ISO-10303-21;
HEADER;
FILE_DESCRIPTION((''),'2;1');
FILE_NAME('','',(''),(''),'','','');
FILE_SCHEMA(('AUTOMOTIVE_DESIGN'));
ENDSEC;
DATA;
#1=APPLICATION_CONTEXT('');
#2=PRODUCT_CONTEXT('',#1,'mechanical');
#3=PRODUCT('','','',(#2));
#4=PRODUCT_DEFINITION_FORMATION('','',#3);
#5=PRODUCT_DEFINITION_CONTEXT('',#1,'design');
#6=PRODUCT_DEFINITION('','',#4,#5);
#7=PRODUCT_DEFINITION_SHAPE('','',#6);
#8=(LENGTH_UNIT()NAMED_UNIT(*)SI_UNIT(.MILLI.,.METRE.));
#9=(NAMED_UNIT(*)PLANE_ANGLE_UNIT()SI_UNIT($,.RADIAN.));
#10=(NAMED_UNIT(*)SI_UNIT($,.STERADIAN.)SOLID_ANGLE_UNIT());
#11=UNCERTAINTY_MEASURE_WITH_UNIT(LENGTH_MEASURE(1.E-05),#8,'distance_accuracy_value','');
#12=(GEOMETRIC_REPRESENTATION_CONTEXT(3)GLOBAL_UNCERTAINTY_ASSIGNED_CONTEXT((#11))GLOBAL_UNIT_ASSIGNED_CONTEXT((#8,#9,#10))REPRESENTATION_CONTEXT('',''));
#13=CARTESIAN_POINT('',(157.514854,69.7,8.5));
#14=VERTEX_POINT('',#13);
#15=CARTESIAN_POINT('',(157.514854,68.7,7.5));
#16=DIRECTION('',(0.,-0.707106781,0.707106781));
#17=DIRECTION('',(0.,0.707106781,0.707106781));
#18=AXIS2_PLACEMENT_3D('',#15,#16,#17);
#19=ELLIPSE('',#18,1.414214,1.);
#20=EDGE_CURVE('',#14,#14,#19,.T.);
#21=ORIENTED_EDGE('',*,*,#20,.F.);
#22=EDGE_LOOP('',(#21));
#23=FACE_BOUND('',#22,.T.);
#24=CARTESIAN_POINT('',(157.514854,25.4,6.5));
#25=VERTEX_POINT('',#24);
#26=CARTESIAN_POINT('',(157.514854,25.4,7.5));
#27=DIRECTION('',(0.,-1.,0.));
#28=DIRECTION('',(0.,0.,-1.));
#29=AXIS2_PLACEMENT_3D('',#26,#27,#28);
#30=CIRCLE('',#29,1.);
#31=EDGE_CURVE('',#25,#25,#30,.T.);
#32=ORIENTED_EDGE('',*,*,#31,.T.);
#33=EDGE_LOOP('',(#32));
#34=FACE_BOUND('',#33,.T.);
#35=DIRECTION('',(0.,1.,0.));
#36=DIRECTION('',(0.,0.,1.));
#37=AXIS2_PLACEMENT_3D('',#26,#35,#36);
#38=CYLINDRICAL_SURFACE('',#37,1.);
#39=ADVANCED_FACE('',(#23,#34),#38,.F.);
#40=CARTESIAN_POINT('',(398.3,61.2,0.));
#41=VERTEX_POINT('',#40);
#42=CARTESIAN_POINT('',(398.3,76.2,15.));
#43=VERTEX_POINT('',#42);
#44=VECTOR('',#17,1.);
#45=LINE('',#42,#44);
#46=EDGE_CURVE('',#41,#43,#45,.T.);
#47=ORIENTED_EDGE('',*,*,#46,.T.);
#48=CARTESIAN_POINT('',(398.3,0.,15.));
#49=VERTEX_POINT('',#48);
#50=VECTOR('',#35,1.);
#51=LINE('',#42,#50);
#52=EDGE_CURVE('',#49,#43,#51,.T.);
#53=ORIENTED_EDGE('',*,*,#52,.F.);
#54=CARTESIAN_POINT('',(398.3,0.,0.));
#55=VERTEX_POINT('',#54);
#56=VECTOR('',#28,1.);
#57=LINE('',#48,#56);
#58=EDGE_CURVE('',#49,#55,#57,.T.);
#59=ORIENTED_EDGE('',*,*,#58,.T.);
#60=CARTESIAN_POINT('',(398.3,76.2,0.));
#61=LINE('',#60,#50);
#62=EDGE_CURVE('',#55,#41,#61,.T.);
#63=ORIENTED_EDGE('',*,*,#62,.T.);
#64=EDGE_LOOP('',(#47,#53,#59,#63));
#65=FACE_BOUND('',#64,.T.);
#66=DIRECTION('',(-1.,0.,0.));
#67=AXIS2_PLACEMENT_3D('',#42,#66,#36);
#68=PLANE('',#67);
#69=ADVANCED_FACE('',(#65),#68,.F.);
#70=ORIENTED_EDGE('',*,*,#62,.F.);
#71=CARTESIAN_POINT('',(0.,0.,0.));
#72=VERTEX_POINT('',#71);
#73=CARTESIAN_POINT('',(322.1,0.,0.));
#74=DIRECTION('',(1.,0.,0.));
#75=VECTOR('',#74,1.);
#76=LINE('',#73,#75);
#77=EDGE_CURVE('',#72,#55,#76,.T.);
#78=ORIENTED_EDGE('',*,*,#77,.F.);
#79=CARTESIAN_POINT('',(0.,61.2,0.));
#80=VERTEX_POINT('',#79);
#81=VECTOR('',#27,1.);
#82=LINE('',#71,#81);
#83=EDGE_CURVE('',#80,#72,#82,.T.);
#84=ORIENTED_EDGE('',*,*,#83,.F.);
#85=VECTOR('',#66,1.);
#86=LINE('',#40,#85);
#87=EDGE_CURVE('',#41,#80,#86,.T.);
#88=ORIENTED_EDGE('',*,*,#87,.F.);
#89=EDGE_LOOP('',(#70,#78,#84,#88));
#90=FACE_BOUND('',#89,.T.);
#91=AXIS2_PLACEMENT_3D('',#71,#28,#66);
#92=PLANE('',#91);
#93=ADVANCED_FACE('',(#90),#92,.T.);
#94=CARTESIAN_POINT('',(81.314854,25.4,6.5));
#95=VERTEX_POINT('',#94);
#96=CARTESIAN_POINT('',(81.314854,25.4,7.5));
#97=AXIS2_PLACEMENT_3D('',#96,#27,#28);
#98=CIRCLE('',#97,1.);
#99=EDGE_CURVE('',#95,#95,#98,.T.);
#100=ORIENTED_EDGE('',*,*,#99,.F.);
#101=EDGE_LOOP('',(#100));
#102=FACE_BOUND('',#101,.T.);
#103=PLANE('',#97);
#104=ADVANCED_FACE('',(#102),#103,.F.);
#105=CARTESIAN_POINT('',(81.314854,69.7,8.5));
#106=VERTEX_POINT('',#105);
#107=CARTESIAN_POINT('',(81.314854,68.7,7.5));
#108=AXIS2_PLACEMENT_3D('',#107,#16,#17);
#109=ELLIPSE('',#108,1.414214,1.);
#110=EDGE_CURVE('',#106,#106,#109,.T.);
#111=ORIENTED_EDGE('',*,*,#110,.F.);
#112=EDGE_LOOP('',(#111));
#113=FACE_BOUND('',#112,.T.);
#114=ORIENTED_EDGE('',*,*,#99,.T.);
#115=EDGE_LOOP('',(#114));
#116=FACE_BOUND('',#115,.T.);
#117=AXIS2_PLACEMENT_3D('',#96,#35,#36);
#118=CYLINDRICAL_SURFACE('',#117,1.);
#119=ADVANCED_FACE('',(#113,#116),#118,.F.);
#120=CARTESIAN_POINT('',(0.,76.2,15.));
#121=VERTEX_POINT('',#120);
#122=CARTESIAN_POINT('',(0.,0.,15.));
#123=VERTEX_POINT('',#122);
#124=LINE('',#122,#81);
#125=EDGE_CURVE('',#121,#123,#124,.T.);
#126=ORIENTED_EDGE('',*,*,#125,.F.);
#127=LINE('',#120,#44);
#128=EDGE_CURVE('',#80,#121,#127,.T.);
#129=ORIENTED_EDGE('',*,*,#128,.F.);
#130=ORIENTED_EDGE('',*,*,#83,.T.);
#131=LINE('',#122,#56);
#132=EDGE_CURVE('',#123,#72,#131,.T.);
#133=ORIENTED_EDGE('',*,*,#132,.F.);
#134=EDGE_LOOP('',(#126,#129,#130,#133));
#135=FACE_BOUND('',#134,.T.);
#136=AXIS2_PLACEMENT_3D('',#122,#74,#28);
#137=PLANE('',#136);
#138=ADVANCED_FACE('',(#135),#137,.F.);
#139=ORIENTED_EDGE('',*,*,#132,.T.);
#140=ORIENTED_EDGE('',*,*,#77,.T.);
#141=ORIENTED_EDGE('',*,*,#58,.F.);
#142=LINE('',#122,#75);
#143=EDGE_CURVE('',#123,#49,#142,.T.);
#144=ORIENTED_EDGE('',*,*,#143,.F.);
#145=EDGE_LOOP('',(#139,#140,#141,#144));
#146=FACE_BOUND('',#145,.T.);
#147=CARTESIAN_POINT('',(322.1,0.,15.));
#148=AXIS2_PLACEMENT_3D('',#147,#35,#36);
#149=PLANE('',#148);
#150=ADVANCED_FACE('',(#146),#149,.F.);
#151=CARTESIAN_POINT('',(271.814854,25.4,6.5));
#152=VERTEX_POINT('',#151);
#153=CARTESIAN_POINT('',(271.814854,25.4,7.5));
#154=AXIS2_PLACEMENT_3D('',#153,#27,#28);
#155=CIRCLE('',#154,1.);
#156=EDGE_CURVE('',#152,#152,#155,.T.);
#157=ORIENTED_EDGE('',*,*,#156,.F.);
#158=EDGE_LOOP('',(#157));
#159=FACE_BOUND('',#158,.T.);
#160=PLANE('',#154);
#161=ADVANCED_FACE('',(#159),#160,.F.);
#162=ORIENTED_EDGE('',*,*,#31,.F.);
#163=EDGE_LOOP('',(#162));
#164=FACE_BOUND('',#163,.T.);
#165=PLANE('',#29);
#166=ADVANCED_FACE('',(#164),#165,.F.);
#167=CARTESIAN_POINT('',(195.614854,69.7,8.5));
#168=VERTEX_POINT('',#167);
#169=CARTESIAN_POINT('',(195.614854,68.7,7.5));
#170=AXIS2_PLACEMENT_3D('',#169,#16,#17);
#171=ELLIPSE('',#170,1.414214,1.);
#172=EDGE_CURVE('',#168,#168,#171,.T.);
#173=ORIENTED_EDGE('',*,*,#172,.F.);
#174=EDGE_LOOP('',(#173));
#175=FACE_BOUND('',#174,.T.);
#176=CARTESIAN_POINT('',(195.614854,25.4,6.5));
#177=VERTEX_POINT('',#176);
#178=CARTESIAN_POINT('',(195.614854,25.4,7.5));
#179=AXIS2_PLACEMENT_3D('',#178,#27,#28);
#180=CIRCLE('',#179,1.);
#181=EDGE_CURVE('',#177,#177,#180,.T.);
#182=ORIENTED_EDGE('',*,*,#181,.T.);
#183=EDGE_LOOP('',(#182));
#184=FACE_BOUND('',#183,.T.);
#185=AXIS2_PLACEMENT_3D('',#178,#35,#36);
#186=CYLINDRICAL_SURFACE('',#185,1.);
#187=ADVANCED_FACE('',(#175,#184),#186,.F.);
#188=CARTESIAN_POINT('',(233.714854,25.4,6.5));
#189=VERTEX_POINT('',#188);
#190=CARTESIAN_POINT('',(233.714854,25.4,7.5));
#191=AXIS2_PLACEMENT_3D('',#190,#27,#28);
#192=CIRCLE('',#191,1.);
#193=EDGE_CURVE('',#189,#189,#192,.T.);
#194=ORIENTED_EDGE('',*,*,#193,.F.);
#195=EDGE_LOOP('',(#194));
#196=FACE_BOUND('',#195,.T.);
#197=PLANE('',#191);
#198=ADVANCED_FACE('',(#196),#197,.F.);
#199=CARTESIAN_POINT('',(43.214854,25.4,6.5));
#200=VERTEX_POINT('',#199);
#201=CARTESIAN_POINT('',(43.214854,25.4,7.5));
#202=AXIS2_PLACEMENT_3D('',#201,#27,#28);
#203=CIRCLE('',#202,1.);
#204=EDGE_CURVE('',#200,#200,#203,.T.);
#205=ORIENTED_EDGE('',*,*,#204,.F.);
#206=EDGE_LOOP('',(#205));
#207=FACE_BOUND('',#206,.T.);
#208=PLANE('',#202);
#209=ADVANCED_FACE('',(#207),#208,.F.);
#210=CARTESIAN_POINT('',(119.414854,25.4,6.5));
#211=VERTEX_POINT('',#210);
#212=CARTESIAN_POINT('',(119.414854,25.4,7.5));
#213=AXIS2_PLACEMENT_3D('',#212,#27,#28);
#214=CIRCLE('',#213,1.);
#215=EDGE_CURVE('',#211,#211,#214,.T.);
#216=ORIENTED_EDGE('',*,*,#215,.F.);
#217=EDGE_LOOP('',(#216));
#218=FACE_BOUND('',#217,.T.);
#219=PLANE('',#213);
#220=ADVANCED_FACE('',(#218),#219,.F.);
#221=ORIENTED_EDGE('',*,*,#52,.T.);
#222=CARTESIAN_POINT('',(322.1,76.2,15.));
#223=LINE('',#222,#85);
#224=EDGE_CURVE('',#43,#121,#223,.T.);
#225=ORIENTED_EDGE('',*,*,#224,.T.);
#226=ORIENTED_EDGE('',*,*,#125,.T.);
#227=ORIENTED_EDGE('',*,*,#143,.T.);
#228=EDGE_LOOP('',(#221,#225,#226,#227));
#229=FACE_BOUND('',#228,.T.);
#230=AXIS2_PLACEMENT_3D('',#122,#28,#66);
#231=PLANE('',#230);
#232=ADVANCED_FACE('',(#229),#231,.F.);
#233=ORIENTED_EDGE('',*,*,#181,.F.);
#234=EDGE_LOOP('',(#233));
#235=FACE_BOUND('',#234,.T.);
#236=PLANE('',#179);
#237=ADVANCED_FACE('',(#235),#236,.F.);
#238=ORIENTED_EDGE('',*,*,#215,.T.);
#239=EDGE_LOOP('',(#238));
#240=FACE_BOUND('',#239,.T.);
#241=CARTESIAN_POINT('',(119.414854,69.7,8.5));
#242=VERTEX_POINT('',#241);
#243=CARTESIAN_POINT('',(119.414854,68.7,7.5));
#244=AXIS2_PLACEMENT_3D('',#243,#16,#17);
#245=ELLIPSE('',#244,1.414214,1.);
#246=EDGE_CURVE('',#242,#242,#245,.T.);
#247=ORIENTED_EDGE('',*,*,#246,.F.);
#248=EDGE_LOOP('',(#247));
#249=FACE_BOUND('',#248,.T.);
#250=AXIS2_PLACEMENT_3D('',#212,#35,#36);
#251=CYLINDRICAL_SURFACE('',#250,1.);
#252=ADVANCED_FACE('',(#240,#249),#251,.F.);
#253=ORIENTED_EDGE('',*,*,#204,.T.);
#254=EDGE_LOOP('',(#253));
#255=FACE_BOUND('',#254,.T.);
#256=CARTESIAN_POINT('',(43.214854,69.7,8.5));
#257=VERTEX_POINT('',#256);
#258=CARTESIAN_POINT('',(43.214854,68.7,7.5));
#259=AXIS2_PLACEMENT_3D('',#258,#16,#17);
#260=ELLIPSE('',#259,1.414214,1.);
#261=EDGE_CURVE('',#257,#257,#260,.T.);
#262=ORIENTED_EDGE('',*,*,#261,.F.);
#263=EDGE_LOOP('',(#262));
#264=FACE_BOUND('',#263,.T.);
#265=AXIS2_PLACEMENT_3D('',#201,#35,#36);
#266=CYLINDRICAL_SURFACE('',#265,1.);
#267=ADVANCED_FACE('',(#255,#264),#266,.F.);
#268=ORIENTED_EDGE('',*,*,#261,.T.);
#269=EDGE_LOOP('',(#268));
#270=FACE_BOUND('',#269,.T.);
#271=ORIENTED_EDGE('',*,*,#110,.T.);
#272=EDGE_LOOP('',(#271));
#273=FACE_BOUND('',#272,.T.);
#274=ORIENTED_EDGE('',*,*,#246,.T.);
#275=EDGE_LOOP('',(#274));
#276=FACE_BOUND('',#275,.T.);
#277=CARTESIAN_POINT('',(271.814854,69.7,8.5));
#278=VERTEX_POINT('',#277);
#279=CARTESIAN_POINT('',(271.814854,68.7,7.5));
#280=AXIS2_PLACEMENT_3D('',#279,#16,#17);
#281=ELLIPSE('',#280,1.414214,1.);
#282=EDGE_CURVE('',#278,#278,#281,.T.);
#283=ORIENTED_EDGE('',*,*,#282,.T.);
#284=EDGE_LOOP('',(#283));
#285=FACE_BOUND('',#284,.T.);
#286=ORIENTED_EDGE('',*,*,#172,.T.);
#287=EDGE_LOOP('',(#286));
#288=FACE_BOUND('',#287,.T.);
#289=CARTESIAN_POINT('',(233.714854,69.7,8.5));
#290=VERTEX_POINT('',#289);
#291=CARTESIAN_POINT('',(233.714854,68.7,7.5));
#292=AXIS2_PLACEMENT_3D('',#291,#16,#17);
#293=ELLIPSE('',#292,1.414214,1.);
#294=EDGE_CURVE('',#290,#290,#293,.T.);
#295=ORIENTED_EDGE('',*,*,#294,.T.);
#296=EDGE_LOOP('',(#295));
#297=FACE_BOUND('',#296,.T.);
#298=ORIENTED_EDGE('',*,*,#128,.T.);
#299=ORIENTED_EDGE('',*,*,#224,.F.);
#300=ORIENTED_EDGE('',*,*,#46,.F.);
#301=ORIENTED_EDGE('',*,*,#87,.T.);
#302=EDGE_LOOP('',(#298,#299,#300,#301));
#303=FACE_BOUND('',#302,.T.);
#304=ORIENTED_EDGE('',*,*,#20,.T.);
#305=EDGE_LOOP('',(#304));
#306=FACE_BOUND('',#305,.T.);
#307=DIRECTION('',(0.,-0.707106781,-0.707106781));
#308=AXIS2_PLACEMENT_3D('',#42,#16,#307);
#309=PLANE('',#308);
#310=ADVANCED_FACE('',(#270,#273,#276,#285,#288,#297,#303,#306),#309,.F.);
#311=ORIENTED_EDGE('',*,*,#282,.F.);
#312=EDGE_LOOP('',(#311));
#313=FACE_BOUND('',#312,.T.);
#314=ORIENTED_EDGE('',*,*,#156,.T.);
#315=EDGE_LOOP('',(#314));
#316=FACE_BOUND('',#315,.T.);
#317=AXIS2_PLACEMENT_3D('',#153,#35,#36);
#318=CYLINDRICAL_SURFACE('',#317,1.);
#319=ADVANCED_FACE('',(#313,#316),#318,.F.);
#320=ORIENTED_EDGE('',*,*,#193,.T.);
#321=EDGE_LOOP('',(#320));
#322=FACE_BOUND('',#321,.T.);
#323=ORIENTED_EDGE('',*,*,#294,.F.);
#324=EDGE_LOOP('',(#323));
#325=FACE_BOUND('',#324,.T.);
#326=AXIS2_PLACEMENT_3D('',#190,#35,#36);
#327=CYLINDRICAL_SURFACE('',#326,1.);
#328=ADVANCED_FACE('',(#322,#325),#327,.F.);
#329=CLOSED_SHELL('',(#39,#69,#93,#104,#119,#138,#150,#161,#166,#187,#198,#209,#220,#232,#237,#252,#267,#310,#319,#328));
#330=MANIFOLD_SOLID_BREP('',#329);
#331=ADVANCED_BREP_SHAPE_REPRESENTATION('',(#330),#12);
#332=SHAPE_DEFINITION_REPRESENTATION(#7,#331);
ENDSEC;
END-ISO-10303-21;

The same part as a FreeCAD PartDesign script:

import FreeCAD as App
import Part
import Sketcher
from FreeCAD import Vector

doc = App.newDocument("Part")
body = doc.addObject("PartDesign::Body", "Body")

# Sketch on XY plane
sketch1 = body.newObject("Sketcher::SketchObject", "Sketch")
sketch1.AttachmentSupport = (doc.getObject("XY_Plane"), [""])
sketch1.MapMode = "FlatFace"
sketch1.addGeometry([
    Part.LineSegment(Vector(0, 0, 0), Vector(398, 0, 0)),
    Part.LineSegment(Vector(398, 0, 0), Vector(398, 76, 0)),
    Part.LineSegment(Vector(398, 76, 0), Vector(0, 76, 0)),
    Part.LineSegment(Vector(0, 76, 0), Vector(0, 0, 0)),
], False)
sketch1.addConstraint([
    Sketcher.Constraint("Coincident", 0, 2, 1, 1),
    Sketcher.Constraint("Coincident", 1, 2, 2, 1),
    Sketcher.Constraint("Coincident", 2, 2, 3, 1),
    Sketcher.Constraint("Coincident", 3, 2, 0, 1),
    Sketcher.Constraint("Horizontal", 0),
    Sketcher.Constraint("Vertical", 1),
    Sketcher.Constraint("Horizontal", 2),
    Sketcher.Constraint("Vertical", 3),
    Sketcher.Constraint("Coincident", 3, 2, -1, 1),
    Sketcher.Constraint("DistanceX", 0, 1, 0, 2, 398.3),
    Sketcher.Constraint("DistanceY", 1, 1, 1, 2, 76.2),
])
pad1 = body.newObject("PartDesign::Pad", "Pad")
pad1.Profile = sketch1
pad1.Length = 15

# Sketch on XZ plane
sketch2 = body.newObject("Sketcher::SketchObject", "Sketch001")
sketch2.AttachmentSupport = (doc.getObject("XZ_Plane"), [""])
sketch2.MapMode = "FlatFace"
sketch2.AttachmentOffset = App.Placement(Vector(0, 0, -76.2), App.Rotation())
sketch2.addGeometry([
    Part.Circle(Vector(157.5, 7.5, 0), Vector(0, 0, 1), 1),  # 0
    Part.Circle(Vector(195.6, 7.5, 0), Vector(0, 0, 1), 1),  # 1
    Part.Circle(Vector(233.7, 7.5, 0), Vector(0, 0, 1), 1),  # 2
    Part.Circle(Vector(271.8, 7.5, 0), Vector(0, 0, 1), 1),  # 3
    Part.Circle(Vector(119.4, 7.5, 0), Vector(0, 0, 1), 1),  # 4
    Part.Circle(Vector(81.3, 7.5, 0), Vector(0, 0, 1), 1),  # 5
    Part.Circle(Vector(43.2, 7.5, 0), Vector(0, 0, 1), 1),  # 6
], False)
sketch2.addConstraint([
    Sketcher.Constraint("Equal", 0, 1),
    Sketcher.Constraint("Equal", 1, 2),
    Sketcher.Constraint("Equal", 2, 3),
    Sketcher.Constraint("Equal", 3, 4),
    Sketcher.Constraint("Equal", 4, 5),
    Sketcher.Constraint("Equal", 5, 6),
    Sketcher.Constraint("Horizontal", 0, 3, 1, 3),
    Sketcher.Constraint("Horizontal", 1, 3, 2, 3),
    Sketcher.Constraint("Horizontal", 2, 3, 3, 3),
    Sketcher.Constraint("Horizontal", 3, 3, 4, 3),
    Sketcher.Constraint("Horizontal", 4, 3, 5, 3),
    Sketcher.Constraint("Horizontal", 5, 3, 6, 3),
    Sketcher.Constraint("Diameter", 0, 2.0),
    Sketcher.Constraint("DistanceY", -1, 1, 0, 3, 7.5),
    Sketcher.Constraint("DistanceX", 0, 3, 1, 3, 38.1),
    Sketcher.Constraint("DistanceX", 1, 3, 2, 3, 38.1),
    Sketcher.Constraint("DistanceX", 2, 3, 3, 3, 38.1),
    Sketcher.Constraint("DistanceX", 4, 3, 0, 3, 38.1),
    Sketcher.Constraint("DistanceX", 5, 3, 4, 3, 38.1),
    Sketcher.Constraint("DistanceX", 6, 3, 5, 3, 38.1),
    Sketcher.Constraint("DistanceX", -1, 1, 0, 3, 157.514854),
])
pocket1 = body.newObject("PartDesign::Pocket", "Pocket")
pocket1.Profile = sketch2
pocket1.Length = 50.8
pocket1.Reversed = True

# Sketch on YZ plane
sketch3 = body.newObject("Sketcher::SketchObject", "Sketch002")
sketch3.AttachmentSupport = (doc.getObject("YZ_Plane"), [""])
sketch3.MapMode = "FlatFace"
sketch3.addGeometry([
    Part.LineSegment(Vector(76, 15, 0), Vector(76, 0, 0)),
    Part.LineSegment(Vector(76, 0, 0), Vector(61, 0, 0)),
    Part.LineSegment(Vector(61, 0, 0), Vector(76, 15, 0)),
], False)
sketch3.addConstraint([
    Sketcher.Constraint("Coincident", 0, 2, 1, 1),
    Sketcher.Constraint("Coincident", 1, 2, 2, 1),
    Sketcher.Constraint("Coincident", 2, 2, 0, 1),
    Sketcher.Constraint("Vertical", 0),
    Sketcher.Constraint("Horizontal", 1),
    Sketcher.Constraint("PointOnObject", 0, 2, -1),
    Sketcher.Constraint("Equal", 1, 0),
    Sketcher.Constraint("DistanceX", 1, 2, 1, 1, 15.0),
    Sketcher.Constraint("DistanceX", -1, 1, 0, 2, 76.2),
])
pocket2 = body.newObject("PartDesign::Pocket", "Pocket001")
pocket2.Profile = sketch3
pocket2.Type = "ThroughAll"
pocket2.Reversed = True

doc.recompute()
